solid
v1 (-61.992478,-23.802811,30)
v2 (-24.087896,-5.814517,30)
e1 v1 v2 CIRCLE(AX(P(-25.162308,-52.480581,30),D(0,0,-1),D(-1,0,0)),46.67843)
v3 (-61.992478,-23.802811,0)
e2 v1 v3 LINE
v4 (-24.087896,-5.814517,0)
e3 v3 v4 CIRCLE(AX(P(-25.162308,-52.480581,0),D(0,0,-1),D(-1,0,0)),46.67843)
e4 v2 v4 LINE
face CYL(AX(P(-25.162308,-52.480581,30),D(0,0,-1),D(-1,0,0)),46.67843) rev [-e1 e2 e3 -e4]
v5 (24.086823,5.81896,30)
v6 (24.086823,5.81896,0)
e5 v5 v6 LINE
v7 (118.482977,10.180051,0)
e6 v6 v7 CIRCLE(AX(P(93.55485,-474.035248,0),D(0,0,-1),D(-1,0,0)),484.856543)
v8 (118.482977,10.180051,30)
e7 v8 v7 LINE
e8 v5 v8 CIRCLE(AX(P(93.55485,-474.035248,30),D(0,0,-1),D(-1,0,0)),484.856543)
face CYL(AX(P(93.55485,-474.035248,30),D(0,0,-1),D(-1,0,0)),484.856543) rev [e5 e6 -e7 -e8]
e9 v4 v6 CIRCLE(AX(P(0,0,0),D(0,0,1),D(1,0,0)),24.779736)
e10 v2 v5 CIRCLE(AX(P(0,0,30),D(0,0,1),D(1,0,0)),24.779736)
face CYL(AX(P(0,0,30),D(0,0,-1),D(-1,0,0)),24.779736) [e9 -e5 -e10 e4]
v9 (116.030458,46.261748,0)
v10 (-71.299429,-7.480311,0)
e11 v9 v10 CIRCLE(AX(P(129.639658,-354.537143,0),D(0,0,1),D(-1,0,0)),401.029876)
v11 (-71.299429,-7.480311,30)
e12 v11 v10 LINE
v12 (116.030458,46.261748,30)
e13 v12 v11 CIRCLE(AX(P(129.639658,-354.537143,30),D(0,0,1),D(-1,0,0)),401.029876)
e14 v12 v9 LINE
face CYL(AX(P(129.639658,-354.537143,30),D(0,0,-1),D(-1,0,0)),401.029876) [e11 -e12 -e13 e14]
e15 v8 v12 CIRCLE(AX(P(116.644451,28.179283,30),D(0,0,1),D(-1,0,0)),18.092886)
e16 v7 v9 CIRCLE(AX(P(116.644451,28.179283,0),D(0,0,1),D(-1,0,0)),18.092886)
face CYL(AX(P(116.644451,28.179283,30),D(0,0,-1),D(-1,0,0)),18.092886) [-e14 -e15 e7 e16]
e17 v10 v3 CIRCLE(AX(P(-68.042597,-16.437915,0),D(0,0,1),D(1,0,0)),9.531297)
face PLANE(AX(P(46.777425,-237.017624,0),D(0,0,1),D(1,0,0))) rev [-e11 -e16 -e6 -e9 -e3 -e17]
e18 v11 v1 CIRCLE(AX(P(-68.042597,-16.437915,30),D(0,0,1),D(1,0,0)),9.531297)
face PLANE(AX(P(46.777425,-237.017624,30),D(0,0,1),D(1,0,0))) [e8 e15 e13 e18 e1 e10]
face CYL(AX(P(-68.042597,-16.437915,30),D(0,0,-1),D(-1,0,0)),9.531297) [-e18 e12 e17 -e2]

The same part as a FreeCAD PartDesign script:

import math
import FreeCAD as App
import Part
import Sketcher

doc = App.newDocument("Part")
body = doc.addObject("PartDesign::Body", "Body")

# Sketch on XY plane
sketch1 = body.newObject("Sketcher::SketchObject", "Sketch")
sketch1.AttachmentSupport = (doc.getObject("XY_Plane"), [""])
sketch1.MapMode = "FlatFace"
sketch1.addGeometry([
    Part.ArcOfCircle(Part.Circle(App.Vector(-25, -52, 0), App.Vector(0, 0, 1), 47), math.radians(89), math.radians(142)),  # 0
    Part.ArcOfCircle(Part.Circle(App.Vector(0, 0, 0), App.Vector(0, 0, 1), 25), math.radians(-166), math.radians(14)),  # 1
    Part.ArcOfCircle(Part.Circle(App.Vector(94, -474, 0), App.Vector(0, 0, 1), 485), math.radians(87.05), math.radians(98.24)),  # 2
    Part.ArcOfCircle(Part.Circle(App.Vector(117, 28, 0), App.Vector(0, 0, 1), 18), math.radians(-84), math.radians(92)),  # 3
    Part.ArcOfCircle(Part.Circle(App.Vector(130, -355, 0), App.Vector(0, 0, 1), 401), math.radians(92), math.radians(120)),  # 4
    Part.ArcOfCircle(Part.Circle(App.Vector(-68, -16, 0), App.Vector(0, 0, 1), 10), math.radians(110), math.radians(309)),  # 5
], False)
sketch1.addConstraint([
    Sketcher.Constraint("Coincident", 0, 1, 1, 1),
    Sketcher.Constraint("Coincident", 1, 2, 2, 2),
    Sketcher.Constraint("Coincident", 2, 1, 3, 1),
    Sketcher.Constraint("Tangent", 3, 2, 4, 1),
    Sketcher.Constraint("Coincident", 4, 2, 5, 1),
    Sketcher.Constraint("Coincident", 5, 2, 0, 2),
    Sketcher.Constraint("Coincident", 1, 3, -1, 1),
    Sketcher.Constraint("Radius", 0, 46.67843),
    Sketcher.Constraint("Radius", 1, 24.779736),
    Sketcher.Constraint("Radius", 2, 484.856543),
    Sketcher.Constraint("Radius", 3, 18.092886),
    Sketcher.Constraint("Radius", 4, 401.029876),
    Sketcher.Constraint("Radius", 5, 9.531297),
    Sketcher.Constraint("DistanceX", 2, 3, 3, 3, 23.089602),
    Sketcher.Constraint("DistanceY", 5, 3, 3, 3, 44.617198),
    Sketcher.Constraint("DistanceX", 5, 3, 0, 1, 43.954701),
    Sketcher.Constraint("DistanceY", 5, 3, 0, 1, 10.623398),
    Sketcher.Constraint("DistanceY", 5, 2, 4, 2, 16.3225),
    Sketcher.Constraint("DistanceX", 0, 3, -1, 1, 25.162308),
    Sketcher.Constraint("DistanceY", 0, 3, -1, 1, 52.480581),
    Sketcher.Constraint("DistanceX", -1, 1, 2, 3, 93.55485),
    Sketcher.Constraint("DistanceY", -1, 1, 1, 2, 5.81896),
])
pad1 = body.newObject("PartDesign::Pad", "Pad")
pad1.Profile = sketch1
pad1.Length = 30

doc.recompute()
